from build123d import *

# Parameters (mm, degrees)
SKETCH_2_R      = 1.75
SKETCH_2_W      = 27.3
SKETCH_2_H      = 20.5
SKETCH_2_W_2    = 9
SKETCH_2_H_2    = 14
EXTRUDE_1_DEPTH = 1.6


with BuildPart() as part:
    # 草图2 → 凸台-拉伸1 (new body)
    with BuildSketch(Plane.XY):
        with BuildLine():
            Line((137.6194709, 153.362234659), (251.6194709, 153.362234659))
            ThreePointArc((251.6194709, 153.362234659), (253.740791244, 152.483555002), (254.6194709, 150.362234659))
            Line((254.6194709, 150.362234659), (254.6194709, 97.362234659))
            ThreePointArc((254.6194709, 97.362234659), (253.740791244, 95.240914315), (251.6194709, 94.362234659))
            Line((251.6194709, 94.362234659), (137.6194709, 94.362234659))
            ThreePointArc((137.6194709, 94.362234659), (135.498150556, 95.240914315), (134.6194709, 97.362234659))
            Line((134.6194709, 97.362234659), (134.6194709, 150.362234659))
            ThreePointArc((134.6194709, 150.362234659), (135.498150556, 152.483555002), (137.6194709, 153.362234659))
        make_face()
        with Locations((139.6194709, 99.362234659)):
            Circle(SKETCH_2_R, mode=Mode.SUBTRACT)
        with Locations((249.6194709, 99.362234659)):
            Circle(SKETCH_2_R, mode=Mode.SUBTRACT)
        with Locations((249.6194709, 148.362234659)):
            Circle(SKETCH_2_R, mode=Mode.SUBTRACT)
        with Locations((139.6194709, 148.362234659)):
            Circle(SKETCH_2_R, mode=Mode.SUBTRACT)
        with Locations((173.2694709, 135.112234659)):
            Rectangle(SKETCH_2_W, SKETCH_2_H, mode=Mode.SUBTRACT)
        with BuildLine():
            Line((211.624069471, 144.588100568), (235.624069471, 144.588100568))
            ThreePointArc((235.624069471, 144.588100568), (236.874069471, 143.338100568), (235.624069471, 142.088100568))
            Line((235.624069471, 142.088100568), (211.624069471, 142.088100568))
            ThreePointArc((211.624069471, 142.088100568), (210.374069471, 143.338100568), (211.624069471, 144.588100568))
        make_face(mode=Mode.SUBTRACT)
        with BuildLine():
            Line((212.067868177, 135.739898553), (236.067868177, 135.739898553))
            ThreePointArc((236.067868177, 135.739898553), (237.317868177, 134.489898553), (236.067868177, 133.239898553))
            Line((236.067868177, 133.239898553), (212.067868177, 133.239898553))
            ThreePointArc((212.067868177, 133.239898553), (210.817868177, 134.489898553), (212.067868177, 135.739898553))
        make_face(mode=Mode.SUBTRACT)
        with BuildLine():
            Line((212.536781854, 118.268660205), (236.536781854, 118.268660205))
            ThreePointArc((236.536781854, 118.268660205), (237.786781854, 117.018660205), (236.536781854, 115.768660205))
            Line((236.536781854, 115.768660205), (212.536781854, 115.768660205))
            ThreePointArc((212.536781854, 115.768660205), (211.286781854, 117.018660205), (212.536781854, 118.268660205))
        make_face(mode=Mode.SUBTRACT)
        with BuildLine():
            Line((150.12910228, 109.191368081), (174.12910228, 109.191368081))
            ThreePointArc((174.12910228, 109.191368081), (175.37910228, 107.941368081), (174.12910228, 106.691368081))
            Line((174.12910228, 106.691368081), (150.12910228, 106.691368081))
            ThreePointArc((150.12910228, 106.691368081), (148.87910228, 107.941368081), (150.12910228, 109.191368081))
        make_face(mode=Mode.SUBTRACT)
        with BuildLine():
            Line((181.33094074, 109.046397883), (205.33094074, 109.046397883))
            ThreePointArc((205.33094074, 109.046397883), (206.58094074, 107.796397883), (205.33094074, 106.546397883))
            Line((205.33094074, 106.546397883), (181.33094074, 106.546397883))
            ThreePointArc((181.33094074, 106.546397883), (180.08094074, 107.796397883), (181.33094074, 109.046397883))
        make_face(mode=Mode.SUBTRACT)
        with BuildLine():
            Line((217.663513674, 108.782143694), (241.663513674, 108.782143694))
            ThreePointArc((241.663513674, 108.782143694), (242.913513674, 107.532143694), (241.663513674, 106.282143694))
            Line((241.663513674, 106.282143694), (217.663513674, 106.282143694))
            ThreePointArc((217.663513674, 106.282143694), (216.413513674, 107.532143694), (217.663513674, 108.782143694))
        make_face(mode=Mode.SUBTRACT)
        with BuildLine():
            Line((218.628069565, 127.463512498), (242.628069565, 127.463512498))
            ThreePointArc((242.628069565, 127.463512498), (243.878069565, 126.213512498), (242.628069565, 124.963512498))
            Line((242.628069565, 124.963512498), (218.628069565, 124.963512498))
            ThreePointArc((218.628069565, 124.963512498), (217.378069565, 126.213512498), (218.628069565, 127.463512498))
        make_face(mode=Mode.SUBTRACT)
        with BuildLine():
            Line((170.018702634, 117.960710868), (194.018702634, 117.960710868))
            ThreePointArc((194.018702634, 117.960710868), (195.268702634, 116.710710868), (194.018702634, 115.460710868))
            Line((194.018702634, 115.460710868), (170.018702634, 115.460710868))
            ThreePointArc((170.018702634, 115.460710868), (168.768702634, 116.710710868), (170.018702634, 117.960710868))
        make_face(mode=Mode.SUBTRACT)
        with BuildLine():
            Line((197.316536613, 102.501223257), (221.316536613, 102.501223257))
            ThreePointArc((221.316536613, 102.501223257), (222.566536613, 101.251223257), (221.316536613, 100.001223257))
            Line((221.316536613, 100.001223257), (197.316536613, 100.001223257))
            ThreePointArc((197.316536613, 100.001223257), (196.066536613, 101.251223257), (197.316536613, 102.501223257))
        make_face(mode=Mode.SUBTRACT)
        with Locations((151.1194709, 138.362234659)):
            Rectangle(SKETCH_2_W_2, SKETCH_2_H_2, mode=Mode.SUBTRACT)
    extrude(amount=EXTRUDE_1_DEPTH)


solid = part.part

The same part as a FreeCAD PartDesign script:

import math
import FreeCAD as App
import Part
import Sketcher


def add_polygon(sketch, points):
    """Adds a closed chain of lines whose ends are joined by coincident constraints."""
    first, n = sketch.GeometryCount, len(points)
    for a, b in zip(points, points[1:] + points[:1]):
        sketch.addGeometry(Part.LineSegment(App.Vector(*a, 0), App.Vector(*b, 0)), False)
    for i in range(n):
        sketch.addConstraint(Sketcher.Constraint("Coincident", first + i, 2, first + (i + 1) % n, 1))

doc = App.newDocument("Part")
body = doc.addObject("PartDesign::Body", "Body")

# Sketch on XY plane
sketch1 = doc.addObject("Sketcher::SketchObject", "Sketch")
body.addObject(sketch1)
sketch1.AttachmentSupport = (doc.XY_Plane, [""])
sketch1.MapMode = "FlatFace"
sketch1.addGeometry(Part.LineSegment(App.Vector(251.619471, 153.362235, 0), App.Vector(137.619471, 153.362235, 0)), False)  # 0
sketch1.addGeometry(Part.ArcOfCircle(Part.Circle(App.Vector(137.619471, 150.362235, 0), App.Vector(0, 0, 1), 3), math.radians(90), math.radians(180)), False)  # 1
sketch1.addGeometry(Part.LineSegment(App.Vector(134.619471, 150.362235, 0), App.Vector(134.619471, 97.362235, 0)), False)  # 2
sketch1.addGeometry(Part.ArcOfCircle(Part.Circle(App.Vector(137.619471, 97.362235, 0), App.Vector(0, 0, 1), 3), math.radians(180), math.radians(270)), False)  # 3
sketch1.addGeometry(Part.LineSegment(App.Vector(137.619471, 94.362235, 0), App.Vector(251.619471, 94.362235, 0)), False)  # 4
sketch1.addGeometry(Part.ArcOfCircle(Part.Circle(App.Vector(251.619471, 97.362235, 0), App.Vector(0, 0, 1), 3), math.radians(-90), math.radians(0)), False)  # 5
sketch1.addGeometry(Part.LineSegment(App.Vector(254.619471, 97.362235, 0), App.Vector(254.619471, 150.362235, 0)), False)  # 6
sketch1.addGeometry(Part.ArcOfCircle(Part.Circle(App.Vector(251.619471, 150.362235, 0), App.Vector(0, 0, 1), 3), math.radians(0), math.radians(90)), False)  # 7
sketch1.addGeometry(Part.Circle(App.Vector(249.619471, 99.362235, 0), App.Vector(0, 0, 1), 1.75), False)  # 8
sketch1.addGeometry(Part.LineSegment(App.Vector(217.663514, 108.782144, 0), App.Vector(241.663514, 108.782144, 0)), False)  # 9
sketch1.addGeometry(Part.ArcOfCircle(Part.Circle(App.Vector(241.663514, 107.532144, 0), App.Vector(0, 0, 1), 1.25), math.radians(-90), math.radians(90)), False)  # 10
sketch1.addGeometry(Part.LineSegment(App.Vector(241.663514, 106.282144, 0), App.Vector(217.663514, 106.282144, 0)), False)  # 11
sketch1.addGeometry(Part.ArcOfCircle(Part.Circle(App.Vector(217.663514, 107.532144, 0), App.Vector(0, 0, 1), 1.25), math.radians(90), math.radians(270)), False)  # 12
sketch1.addGeometry(Part.LineSegment(App.Vector(197.316537, 102.501223, 0), App.Vector(221.316537, 102.501223, 0)), False)  # 13
sketch1.addGeometry(Part.ArcOfCircle(Part.Circle(App.Vector(221.316537, 101.251223, 0), App.Vector(0, 0, 1), 1.25), math.radians(-90), math.radians(90)), False)  # 14
sketch1.addGeometry(Part.LineSegment(App.Vector(221.316537, 100.001223, 0), App.Vector(197.316537, 100.001223, 0)), False)  # 15
sketch1.addGeometry(Part.ArcOfCircle(Part.Circle(App.Vector(197.316537, 101.251223, 0), App.Vector(0, 0, 1), 1.25), math.radians(90), math.radians(270)), False)  # 16
sketch1.addGeometry(Part.LineSegment(App.Vector(212.536782, 118.26866, 0), App.Vector(236.536782, 118.26866, 0)), False)  # 17
sketch1.addGeometry(Part.ArcOfCircle(Part.Circle(App.Vector(236.536782, 117.01866, 0), App.Vector(0, 0, 1), 1.25), math.radians(-90), math.radians(90)), False)  # 18
sketch1.addGeometry(Part.LineSegment(App.Vector(236.536782, 115.76866, 0), App.Vector(212.536782, 115.76866, 0)), False)  # 19
sketch1.addGeometry(Part.ArcOfCircle(Part.Circle(App.Vector(212.536782, 117.01866, 0), App.Vector(0, 0, 1), 1.25), math.radians(90), math.radians(270)), False)  # 20
sketch1.addGeometry(Part.LineSegment(App.Vector(181.330941, 109.046398, 0), App.Vector(205.330941, 109.046398, 0)), False)  # 21
sketch1.addGeometry(Part.ArcOfCircle(Part.Circle(App.Vector(205.330941, 107.796398, 0), App.Vector(0, 0, 1), 1.25), math.radians(-90), math.radians(90)), False)  # 22
sketch1.addGeometry(Part.LineSegment(App.Vector(205.330941, 106.546398, 0), App.Vector(181.330941, 106.546398, 0)), False)  # 23
sketch1.addGeometry(Part.ArcOfCircle(Part.Circle(App.Vector(181.330941, 107.796398, 0), App.Vector(0, 0, 1), 1.25), math.radians(90), math.radians(270)), False)  # 24
sketch1.addGeometry(Part.Circle(App.Vector(139.619471, 99.362235, 0), App.Vector(0, 0, 1), 1.75), False)  # 25
sketch1.addGeometry(Part.LineSegment(App.Vector(150.129102, 109.191368, 0), App.Vector(174.129102, 109.191368, 0)), False)  # 26
sketch1.addGeometry(Part.ArcOfCircle(Part.Circle(App.Vector(174.129102, 107.941368, 0), App.Vector(0, 0, 1), 1.25), math.radians(-90), math.radians(90)), False)  # 27
sketch1.addGeometry(Part.LineSegment(App.Vector(174.129102, 106.691368, 0), App.Vector(150.129102, 106.691368, 0)), False)  # 28
sketch1.addGeometry(Part.ArcOfCircle(Part.Circle(App.Vector(150.129102, 107.941368, 0), App.Vector(0, 0, 1), 1.25), math.radians(90), math.radians(270)), False)  # 29
sketch1.addGeometry(Part.LineSegment(App.Vector(170.018703, 117.960711, 0), App.Vector(194.018703, 117.960711, 0)), False)  # 30
sketch1.addGeometry(Part.ArcOfCircle(Part.Circle(App.Vector(194.018703, 116.710711, 0), App.Vector(0, 0, 1), 1.25), math.radians(-90), math.radians(90)), False)  # 31
sketch1.addGeometry(Part.LineSegment(App.Vector(194.018703, 115.460711, 0), App.Vector(170.018703, 115.460711, 0)), False)  # 32
sketch1.addGeometry(Part.ArcOfCircle(Part.Circle(App.Vector(170.018703, 116.710711, 0), App.Vector(0, 0, 1), 1.25), math.radians(90), math.radians(270)), False)  # 33
sketch1.addGeometry(Part.LineSegment(App.Vector(218.62807, 127.463512, 0), App.Vector(242.62807, 127.463512, 0)), False)  # 34
sketch1.addGeometry(Part.ArcOfCircle(Part.Circle(App.Vector(242.62807, 126.213512, 0), App.Vector(0, 0, 1), 1.25), math.radians(-90), math.radians(90)), False)  # 35
sketch1.addGeometry(Part.LineSegment(App.Vector(242.62807, 124.963512, 0), App.Vector(218.62807, 124.963512, 0)), False)  # 36
sketch1.addGeometry(Part.ArcOfCircle(Part.Circle(App.Vector(218.62807, 126.213512, 0), App.Vector(0, 0, 1), 1.25), math.radians(90), math.radians(270)), False)  # 37
sketch1.addGeometry(Part.LineSegment(App.Vector(212.067868, 135.739899, 0), App.Vector(236.067868, 135.739899, 0)), False)  # 38
sketch1.addGeometry(Part.ArcOfCircle(Part.Circle(App.Vector(236.067868, 134.489899, 0), App.Vector(0, 0, 1), 1.25), math.radians(-90), math.radians(90)), False)  # 39
sketch1.addGeometry(Part.LineSegment(App.Vector(236.067868, 133.239899, 0), App.Vector(212.067868, 133.239899, 0)), False)  # 40
sketch1.addGeometry(Part.ArcOfCircle(Part.Circle(App.Vector(212.067868, 134.489899, 0), App.Vector(0, 0, 1), 1.25), math.radians(90), math.radians(270)), False)  # 41
sketch1.addGeometry(Part.LineSegment(App.Vector(211.624069, 144.588101, 0), App.Vector(235.624069, 144.588101, 0)), False)  # 42
sketch1.addGeometry(Part.ArcOfCircle(Part.Circle(App.Vector(235.624069, 143.338101, 0), App.Vector(0, 0, 1), 1.25), math.radians(-90), math.radians(90)), False)  # 43
sketch1.addGeometry(Part.LineSegment(App.Vector(235.624069, 142.088101, 0), App.Vector(211.624069, 142.088101, 0)), False)  # 44
sketch1.addGeometry(Part.ArcOfCircle(Part.Circle(App.Vector(211.624069, 143.338101, 0), App.Vector(0, 0, 1), 1.25), math.radians(90), math.radians(270)), False)  # 45
sketch1.addGeometry(Part.Circle(App.Vector(249.619471, 148.362235, 0), App.Vector(0, 0, 1), 1.75), False)  # 46
add_polygon(sketch1, [(159.619471, 124.862235), (159.619471, 145.362235), (186.919471, 145.362235), (186.919471, 124.862235)])  # lines 47-50
add_polygon(sketch1, [(146.619471, 131.362235), (146.619471, 145.362235), (155.619471, 145.362235), (155.619471, 131.362235)])  # lines 51-54
sketch1.addGeometry(Part.Circle(App.Vector(139.619471, 148.362235, 0), App.Vector(0, 0, 1), 1.75), False)  # 55
sketch1.addConstraint(Sketcher.Constraint("Tangent", 0, 2, 1, 1))
sketch1.addConstraint(Sketcher.Constraint("Tangent", 1, 2, 2, 1))
sketch1.addConstraint(Sketcher.Constraint("Tangent", 2, 2, 3, 1))
sketch1.addConstraint(Sketcher.Constraint("Tangent", 3, 2, 4, 1))
sketch1.addConstraint(Sketcher.Constraint("Tangent", 4, 2, 5, 1))
sketch1.addConstraint(Sketcher.Constraint("Tangent", 5, 2, 6, 1))
sketch1.addConstraint(Sketcher.Constraint("Tangent", 6, 2, 7, 1))
sketch1.addConstraint(Sketcher.Constraint("Tangent", 7, 2, 0, 1))
sketch1.addConstraint(Sketcher.Constraint("Tangent", 9, 2, 10, 2))
sketch1.addConstraint(Sketcher.Constraint("Tangent", 10, 1, 11, 1))
sketch1.addConstraint(Sketcher.Constraint("Tangent", 11, 2, 12, 2))
sketch1.addConstraint(Sketcher.Constraint("Tangent", 12, 1, 9, 1))
sketch1.addConstraint(Sketcher.Constraint("Tangent", 13, 2, 14, 2))
sketch1.addConstraint(Sketcher.Constraint("Tangent", 14, 1, 15, 1))
sketch1.addConstraint(Sketcher.Constraint("Tangent", 15, 2, 16, 2))
sketch1.addConstraint(Sketcher.Constraint("Tangent", 16, 1, 13, 1))
sketch1.addConstraint(Sketcher.Constraint("Tangent", 17, 2, 18, 2))
sketch1.addConstraint(Sketcher.Constraint("Tangent", 18, 1, 19, 1))
sketch1.addConstraint(Sketcher.Constraint("Tangent", 19, 2, 20, 2))
sketch1.addConstraint(Sketcher.Constraint("Tangent", 20, 1, 17, 1))
sketch1.addConstraint(Sketcher.Constraint("Tangent", 21, 2, 22, 2))
sketch1.addConstraint(Sketcher.Constraint("Tangent", 22, 1, 23, 1))
sketch1.addConstraint(Sketcher.Constraint("Tangent", 23, 2, 24, 2))
sketch1.addConstraint(Sketcher.Constraint("Tangent", 24, 1, 21, 1))
sketch1.addConstraint(Sketcher.Constraint("Tangent", 26, 2, 27, 2))
sketch1.addConstraint(Sketcher.Constraint("Tangent", 27, 1, 28, 1))
sketch1.addConstraint(Sketcher.Constraint("Tangent", 28, 2, 29, 2))
sketch1.addConstraint(Sketcher.Constraint("Tangent", 29, 1, 26, 1))
sketch1.addConstraint(Sketcher.Constraint("Tangent", 30, 2, 31, 2))
sketch1.addConstraint(Sketcher.Constraint("Tangent", 31, 1, 32, 1))
sketch1.addConstraint(Sketcher.Constraint("Tangent", 32, 2, 33, 2))
sketch1.addConstraint(Sketcher.Constraint("Tangent", 33, 1, 30, 1))
sketch1.addConstraint(Sketcher.Constraint("Tangent", 34, 2, 35, 2))
sketch1.addConstraint(Sketcher.Constraint("Tangent", 35, 1, 36, 1))
sketch1.addConstraint(Sketcher.Constraint("Tangent", 36, 2, 37, 2))
sketch1.addConstraint(Sketcher.Constraint("Tangent", 37, 1, 34, 1))
sketch1.addConstraint(Sketcher.Constraint("Tangent", 38, 2, 39, 2))
sketch1.addConstraint(Sketcher.Constraint("Tangent", 39, 1, 40, 1))
sketch1.addConstraint(Sketcher.Constraint("Tangent", 40, 2, 41, 2))
sketch1.addConstraint(Sketcher.Constraint("Tangent", 41, 1, 38, 1))
sketch1.addConstraint(Sketcher.Constraint("Tangent", 42, 2, 43, 2))
sketch1.addConstraint(Sketcher.Constraint("Tangent", 43, 1, 44, 1))
sketch1.addConstraint(Sketcher.Constraint("Tangent", 44, 2, 45, 2))
sketch1.addConstraint(Sketcher.Constraint("Tangent", 45, 1, 42, 1))
sketch1.addConstraint(Sketcher.Constraint("Horizontal", 0))
sketch1.addConstraint(Sketcher.Constraint("Vertical", 2))
sketch1.addConstraint(Sketcher.Constraint("Horizontal", 4))
sketch1.addConstraint(Sketcher.Constraint("Vertical", 6))
sketch1.addConstraint(Sketcher.Constraint("Horizontal", 9))
sketch1.addConstraint(Sketcher.Constraint("Horizontal", 11))
sketch1.addConstraint(Sketcher.Constraint("Horizontal", 13))
sketch1.addConstraint(Sketcher.Constraint("Horizontal", 15))
sketch1.addConstraint(Sketcher.Constraint("Horizontal", 17))
sketch1.addConstraint(Sketcher.Constraint("Horizontal", 19))
sketch1.addConstraint(Sketcher.Constraint("Horizontal", 21))
sketch1.addConstraint(Sketcher.Constraint("Horizontal", 23))
sketch1.addConstraint(Sketcher.Constraint("Horizontal", 26))
sketch1.addConstraint(Sketcher.Constraint("Horizontal", 28))
sketch1.addConstraint(Sketcher.Constraint("Horizontal", 30))
sketch1.addConstraint(Sketcher.Constraint("Horizontal", 32))
sketch1.addConstraint(Sketcher.Constraint("Horizontal", 34))
sketch1.addConstraint(Sketcher.Constraint("Horizontal", 36))
sketch1.addConstraint(Sketcher.Constraint("Horizontal", 38))
sketch1.addConstraint(Sketcher.Constraint("Horizontal", 40))
sketch1.addConstraint(Sketcher.Constraint("Horizontal", 42))
sketch1.addConstraint(Sketcher.Constraint("Horizontal", 44))
sketch1.addConstraint(Sketcher.Constraint("Vertical", 47))
sketch1.addConstraint(Sketcher.Constraint("Horizontal", 48))
sketch1.addConstraint(Sketcher.Constraint("Vertical", 49))
sketch1.addConstraint(Sketcher.Constraint("Horizontal", 50))
sketch1.addConstraint(Sketcher.Constraint("Vertical", 51))
sketch1.addConstraint(Sketcher.Constraint("Horizontal", 52))
sketch1.addConstraint(Sketcher.Constraint("Vertical", 53))
sketch1.addConstraint(Sketcher.Constraint("Horizontal", 54))
sketch1.addConstraint(Sketcher.Constraint("Equal", 1, 3))
sketch1.addConstraint(Sketcher.Constraint("Equal", 3, 5))
sketch1.addConstraint(Sketcher.Constraint("Equal", 5, 7))
sketch1.addConstraint(Sketcher.Constraint("Equal", 12, 14))
sketch1.addConstraint(Sketcher.Constraint("Equal", 16, 18))
sketch1.addConstraint(Sketcher.Constraint("Equal", 20, 22))
sketch1.addConstraint(Sketcher.Constraint("Equal", 8, 25))
sketch1.addConstraint(Sketcher.Constraint("Equal", 24, 27))
sketch1.addConstraint(Sketcher.Constraint("Equal", 29, 31))
sketch1.addConstraint(Sketcher.Constraint("Equal", 33, 35))
sketch1.addConstraint(Sketcher.Constraint("Equal", 37, 39))
sketch1.addConstraint(Sketcher.Constraint("Equal", 41, 43))
sketch1.addConstraint(Sketcher.Constraint("Equal", 25, 46))
sketch1.addConstraint(Sketcher.Constraint("Equal", 46, 55))
sketch1.addConstraint(Sketcher.Constraint("Horizontal", 8, 3, 25, 3))
sketch1.addConstraint(Sketcher.Constraint("Horizontal", 46, 3, 55, 3))
sketch1.addConstraint(Sketcher.Constraint("Horizontal", 48, 2, 51, 2))
sketch1.addConstraint(Sketcher.Constraint("Vertical", 8, 3, 46, 3))
sketch1.addConstraint(Sketcher.Constraint("Vertical", 25, 3, 55, 3))
sketch1.addConstraint(Sketcher.Constraint("Equal", 11, 13))
sketch1.addConstraint(Sketcher.Constraint("Equal", 15, 17))
sketch1.addConstraint(Sketcher.Constraint("Equal", 19, 21))
sketch1.addConstraint(Sketcher.Constraint("Equal", 23, 26))
sketch1.addConstraint(Sketcher.Constraint("Equal", 28, 30))
sketch1.addConstraint(Sketcher.Constraint("Equal", 32, 34))
sketch1.addConstraint(Sketcher.Constraint("Equal", 36, 38))
sketch1.addConstraint(Sketcher.Constraint("Equal", 40, 42))
sketch1.addConstraint(Sketcher.Constraint("Radius", 1, 3.0))
sketch1.addConstraint(Sketcher.Constraint("Diameter", 8, 3.5))
sketch1.addConstraint(Sketcher.Constraint("DistanceX", 0, 2, 0, 1, 114.0))
sketch1.addConstraint(Sketcher.Constraint("DistanceX", 9, 1, 9, 2, 24.0))
sketch1.addConstraint(Sketcher.Constraint("DistanceX", 52, 1, 52, 2, 9.0))
sketch1.addConstraint(Sketcher.Constraint("DistanceY", 2, 2, 2, 1, 53.0))
sketch1.addConstraint(Sketcher.Constraint("DistanceY", 51, 1, 51, 2, 14.0))
sketch1.addConstraint(Sketcher.Constraint("Radius", 10, 1.25))
sketch1.addConstraint(Sketcher.Constraint("DistanceX", 48, 1, 48, 2, 27.3))
sketch1.addConstraint(Sketcher.Constraint("DistanceY", 47, 1, 47, 2, 20.5))
sketch1.addConstraint(Sketcher.Constraint("DistanceY", -1, 1, 39, 3, 134.489899))
sketch1.addConstraint(Sketcher.Constraint("DistanceY", -1, 1, 43, 3, 143.338101))
sketch1.addConstraint(Sketcher.Constraint("DistanceX", -1, 1, 1, 3, 137.619471))
sketch1.addConstraint(Sketcher.Constraint("DistanceX", -1, 1, 8, 3, 249.619471))
sketch1.addConstraint(Sketcher.Constraint("DistanceX", -1, 1, 18, 3, 236.536782))
sketch1.addConstraint(Sketcher.Constraint("DistanceY", -1, 1, 18, 3, 117.01866))
sketch1.addConstraint(Sketcher.Constraint("DistanceX", -1, 1, 22, 3, 205.330941))
sketch1.addConstraint(Sketcher.Constraint("DistanceX", -1, 1, 25, 3, 139.619471))
sketch1.addConstraint(Sketcher.Constraint("DistanceY", -1, 1, 27, 3, 107.941368))
sketch1.addConstraint(Sketcher.Constraint("DistanceY", -1, 1, 31, 3, 116.710711))
sketch1.addConstraint(Sketcher.Constraint("DistanceX", -1, 1, 35, 3, 242.62807))
sketch1.addConstraint(Sketcher.Constraint("DistanceX", -1, 1, 39, 3, 236.067868))
sketch1.addConstraint(Sketcher.Constraint("DistanceX", -1, 1, 43, 3, 235.624069))
sketch1.addConstraint(Sketcher.Constraint("DistanceX", -1, 1, 47, 2, 159.619471))
sketch1.addConstraint(Sketcher.Constraint("DistanceX", -1, 1, 51, 2, 146.619471))
sketch1.addConstraint(Sketcher.Constraint("DistanceY", -1, 1, 1, 3, 150.362235))
sketch1.addConstraint(Sketcher.Constraint("DistanceY", -1, 1, 8, 3, 99.362235))
sketch1.addConstraint(Sketcher.Constraint("DistanceX", -1, 1, 10, 3, 241.663514))
sketch1.addConstraint(Sketcher.Constraint("DistanceY", -1, 1, 10, 3, 107.532144))
sketch1.addConstraint(Sketcher.Constraint("DistanceX", -1, 1, 14, 3, 221.316537))
sketch1.addConstraint(Sketcher.Constraint("DistanceY", -1, 1, 14, 3, 101.251223))
sketch1.addConstraint(Sketcher.Constraint("DistanceY", -1, 1, 22, 3, 107.796398))
sketch1.addConstraint(Sketcher.Constraint("DistanceX", -1, 1, 27, 3, 174.129102))
sketch1.addConstraint(Sketcher.Constraint("DistanceX", -1, 1, 31, 3, 194.018703))
sketch1.addConstraint(Sketcher.Constraint("DistanceY", -1, 1, 35, 3, 126.213512))
sketch1.addConstraint(Sketcher.Constraint("DistanceY", -1, 1, 46, 3, 148.362235))
sketch1.addConstraint(Sketcher.Constraint("DistanceY", -1, 1, 47, 2, 145.362235))
pad1 = doc.addObject("PartDesign::Pad", "Pad")
body.addObject(pad1)
pad1.Profile = sketch1
pad1.Length = 1.6

doc.recompute()
